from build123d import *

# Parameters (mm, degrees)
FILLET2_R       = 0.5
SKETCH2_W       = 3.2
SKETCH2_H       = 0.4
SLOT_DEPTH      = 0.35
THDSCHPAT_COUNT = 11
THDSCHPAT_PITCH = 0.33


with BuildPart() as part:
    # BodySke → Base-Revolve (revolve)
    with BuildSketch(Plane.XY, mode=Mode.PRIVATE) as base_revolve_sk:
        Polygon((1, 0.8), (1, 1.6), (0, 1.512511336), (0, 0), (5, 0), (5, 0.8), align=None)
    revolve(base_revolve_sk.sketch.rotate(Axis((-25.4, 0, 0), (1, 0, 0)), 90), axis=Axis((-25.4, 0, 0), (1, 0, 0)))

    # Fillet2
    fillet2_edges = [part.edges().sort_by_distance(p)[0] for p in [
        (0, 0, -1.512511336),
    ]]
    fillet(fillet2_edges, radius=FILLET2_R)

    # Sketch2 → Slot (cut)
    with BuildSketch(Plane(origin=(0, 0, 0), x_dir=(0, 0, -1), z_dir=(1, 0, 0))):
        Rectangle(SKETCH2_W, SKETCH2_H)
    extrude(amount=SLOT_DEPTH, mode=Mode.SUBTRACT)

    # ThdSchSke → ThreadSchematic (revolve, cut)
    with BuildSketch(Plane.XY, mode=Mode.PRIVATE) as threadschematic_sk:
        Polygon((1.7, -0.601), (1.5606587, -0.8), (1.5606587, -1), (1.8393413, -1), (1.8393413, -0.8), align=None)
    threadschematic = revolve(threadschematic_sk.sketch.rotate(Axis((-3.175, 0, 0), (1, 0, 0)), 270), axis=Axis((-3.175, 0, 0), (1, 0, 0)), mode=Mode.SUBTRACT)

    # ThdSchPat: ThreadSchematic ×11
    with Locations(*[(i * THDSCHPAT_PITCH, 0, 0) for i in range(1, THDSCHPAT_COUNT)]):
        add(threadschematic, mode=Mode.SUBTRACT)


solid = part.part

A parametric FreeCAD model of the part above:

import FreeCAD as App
import Part
import Sketcher
from FreeCAD import Vector
Q = App.Units.Quantity


def edges_at(feature, points):
    """Names of the edges that pass closest to the given points."""
    edges = feature.Shape.Edges
    near = lambda p: min(range(len(edges)), key=lambda i: edges[i].distToShape(Part.Vertex(*p))[0])
    return sorted({f"Edge{near(p) + 1}" for p in points})

doc = App.newDocument("Part")
params = doc.addObject("Spreadsheet::Sheet", "Params")
for row, (alias, value) in enumerate([
    ("sketch1_width", "5 mm"),
    ("sketch1_width2", "4 mm"),
    ("sketch1_height", "0.8 mm"),
    ("revolution_angle", "360 deg"),
    ("fillet_radius", "0.5 mm"),
    ("sketch2_width", "0.4 mm"),
    ("sketch2_height", "3.2 mm"),
    ("pocket1_length", "0.35 mm"),
    ("sketch3_height", "0.2 mm"),
    ("groove_angle", "360 deg"),
    ("linearpattern_pitch", "0.33 mm"),
], start=1):
    params.set(f"A{row}", alias)
    params.set(f"B{row}", "=" + value)
    params.setAlias(f"B{row}", alias)

body = doc.addObject("PartDesign::Body", "Body")

# Sketch on XY plane
sketch1 = doc.addObject("Sketcher::SketchObject", "Sketch")
body.addObject(sketch1)
sketch1.AttachmentSupport = (doc.XY_Plane, [""])
sketch1.MapMode = "FlatFace"
sketch1.addGeometry([
    Part.LineSegment(Vector(1, 0.8, 0), Vector(1, 1.6, 0)),  # 0
    Part.LineSegment(Vector(1, 1.6, 0), Vector(0, 1.5, 0)),  # 1
    Part.LineSegment(Vector(0, 1.5, 0), Vector(0, 0, 0)),  # 2
    Part.LineSegment(Vector(0, 0, 0), Vector(5, 0, 0)),  # 3
    Part.LineSegment(Vector(5, 0, 0), Vector(5, 0.8, 0)),  # 4
    Part.LineSegment(Vector(5, 0.8, 0), Vector(1, 0.8, 0)),  # 5
], False)
sketch1.addConstraint([
    Sketcher.Constraint("Coincident", 0, 2, 1, 1),
    Sketcher.Constraint("Coincident", 1, 2, 2, 1),
    Sketcher.Constraint("Coincident", 2, 2, 3, 1),
    Sketcher.Constraint("Coincident", 3, 2, 4, 1),
    Sketcher.Constraint("Coincident", 4, 2, 5, 1),
    Sketcher.Constraint("Coincident", 5, 2, 0, 1),
    Sketcher.Constraint("Vertical", 0),
    Sketcher.Constraint("Vertical", 2),
    Sketcher.Constraint("Horizontal", 3),
    Sketcher.Constraint("Vertical", 4),
    Sketcher.Constraint("Horizontal", 5),
    Sketcher.Constraint("Coincident", 2, 2, -1, 1),
    Sketcher.Constraint("Equal", 0, 4),
    Sketcher.Constraint("DistanceX", 3, 1, 3, 2, 5.0),
    Sketcher.Constraint("DistanceX", 5, 2, 5, 1, 4.0),
    Sketcher.Constraint("Angle", 1, Q("-175 deg")),
    Sketcher.Constraint("DistanceY", 0, 1, 0, 2, 0.8),
])
sketch1.setExpression("Constraints[13]", "Params.sketch1_width")
sketch1.setExpression("Constraints[14]", "Params.sketch1_width2")
sketch1.setExpression("Constraints[16]", "Params.sketch1_height")
revolution = doc.addObject("PartDesign::Revolution", "Revolution")
body.addObject(revolution)
revolution.Profile = sketch1
revolution.ReferenceAxis = (sketch1, ["H_Axis"])
revolution.setExpression("Angle", "Params.revolution_angle")
doc.recompute()

fillet = doc.addObject("PartDesign::Fillet", "Fillet")
body.addObject(fillet)
fillet.Base = (revolution, edges_at(revolution, [(0, 0, -1.513)]))
fillet.setExpression("Radius", "Params.fillet_radius")

# Sketch on YZ plane
sketch2 = doc.addObject("Sketcher::SketchObject", "Sketch001")
body.addObject(sketch2)
sketch2.AttachmentSupport = (doc.YZ_Plane, [""])
sketch2.MapMode = "FlatFace"
sketch2.addGeometry([
    Part.LineSegment(Vector(0.2, 1.6, 0), Vector(-0.2, 1.6, 0)),
    Part.LineSegment(Vector(-0.2, 1.6, 0), Vector(-0.2, -1.6, 0)),
    Part.LineSegment(Vector(-0.2, -1.6, 0), Vector(0.2, -1.6, 0)),
    Part.LineSegment(Vector(0.2, -1.6, 0), Vector(0.2, 1.6, 0)),
], False)
sketch2.addConstraint([
    Sketcher.Constraint("Coincident", 0, 2, 1, 1),
    Sketcher.Constraint("Coincident", 1, 2, 2, 1),
    Sketcher.Constraint("Coincident", 2, 2, 3, 1),
    Sketcher.Constraint("Coincident", 3, 2, 0, 1),
    Sketcher.Constraint("Horizontal", 0),
    Sketcher.Constraint("Vertical", 1),
    Sketcher.Constraint("Horizontal", 2),
    Sketcher.Constraint("Vertical", 3),
    Sketcher.Constraint("Symmetric", 0, 2, 2, 2, -1, 1),
    Sketcher.Constraint("DistanceX", 0, 2, 0, 1, 0.4),
    Sketcher.Constraint("DistanceY", 1, 2, 1, 1, 3.2),
])
sketch2.setExpression("Constraints[9]", "Params.sketch2_width")
sketch2.setExpression("Constraints[10]", "Params.sketch2_height")
pocket1 = doc.addObject("PartDesign::Pocket", "Pocket")
body.addObject(pocket1)
pocket1.Profile = sketch2
pocket1.setExpression("Length", "Params.pocket1_length")
pocket1.Reversed = True

# Sketch on XY plane
sketch3 = doc.addObject("Sketcher::SketchObject", "Sketch002")
body.addObject(sketch3)
sketch3.AttachmentSupport = (doc.XY_Plane, [""])
sketch3.MapMode = "FlatFace"
sketch3.addGeometry([
    Part.LineSegment(Vector(1.7, -0.6, 0), Vector(1.56, -0.8, 0)),  # 0
    Part.LineSegment(Vector(1.56, -0.8, 0), Vector(1.56, -1, 0)),  # 1
    Part.LineSegment(Vector(1.56, -1, 0), Vector(1.84, -1, 0)),  # 2
    Part.LineSegment(Vector(1.84, -1, 0), Vector(1.84, -0.8, 0)),  # 3
    Part.LineSegment(Vector(1.84, -0.8, 0), Vector(1.7, -0.6, 0)),  # 4
], False)
sketch3.addConstraint([
    Sketcher.Constraint("Coincident", 0, 2, 1, 1),
    Sketcher.Constraint("Coincident", 1, 2, 2, 1),
    Sketcher.Constraint("Coincident", 2, 2, 3, 1),
    Sketcher.Constraint("Coincident", 3, 2, 4, 1),
    Sketcher.Constraint("Coincident", 4, 2, 0, 1),
    Sketcher.Constraint("Vertical", 1),
    Sketcher.Constraint("Horizontal", 2),
    Sketcher.Constraint("Vertical", 3),
    Sketcher.Constraint("Horizontal", 0, 2, 3, 2),
    Sketcher.Constraint("Equal", 0, 4),
    Sketcher.Constraint("Angle", 0, Q("-125 deg")),
    Sketcher.Constraint("DistanceY", 1, 2, 1, 1, 0.2),
    Sketcher.Constraint("DistanceY", 1, 2, -1, 1, 1.0),
    Sketcher.Constraint("DistanceX", -1, 1, 4, 2, 1.7),
    Sketcher.Constraint("DistanceY", 4, 2, -1, 1, 0.601),
])
sketch3.setExpression("Constraints[11]", "Params.sketch3_height")
groove = doc.addObject("PartDesign::Groove", "Groove")
body.addObject(groove)
groove.Profile = sketch3
groove.ReferenceAxis = (sketch3, ["H_Axis"])
groove.setExpression("Angle", "Params.groove_angle")
doc.recompute()

linearpattern = doc.addObject("PartDesign::LinearPattern", "LinearPattern")
body.addObject(linearpattern)
linearpattern.Originals = [groove]
linearpattern.Direction = (doc.X_Axis, [""])
linearpattern.Mode = "offset"
linearpattern.setExpression("Offset", "Params.linearpattern_pitch")
linearpattern.Occurrences = 11
body.Tip = linearpattern

doc.recompute()
